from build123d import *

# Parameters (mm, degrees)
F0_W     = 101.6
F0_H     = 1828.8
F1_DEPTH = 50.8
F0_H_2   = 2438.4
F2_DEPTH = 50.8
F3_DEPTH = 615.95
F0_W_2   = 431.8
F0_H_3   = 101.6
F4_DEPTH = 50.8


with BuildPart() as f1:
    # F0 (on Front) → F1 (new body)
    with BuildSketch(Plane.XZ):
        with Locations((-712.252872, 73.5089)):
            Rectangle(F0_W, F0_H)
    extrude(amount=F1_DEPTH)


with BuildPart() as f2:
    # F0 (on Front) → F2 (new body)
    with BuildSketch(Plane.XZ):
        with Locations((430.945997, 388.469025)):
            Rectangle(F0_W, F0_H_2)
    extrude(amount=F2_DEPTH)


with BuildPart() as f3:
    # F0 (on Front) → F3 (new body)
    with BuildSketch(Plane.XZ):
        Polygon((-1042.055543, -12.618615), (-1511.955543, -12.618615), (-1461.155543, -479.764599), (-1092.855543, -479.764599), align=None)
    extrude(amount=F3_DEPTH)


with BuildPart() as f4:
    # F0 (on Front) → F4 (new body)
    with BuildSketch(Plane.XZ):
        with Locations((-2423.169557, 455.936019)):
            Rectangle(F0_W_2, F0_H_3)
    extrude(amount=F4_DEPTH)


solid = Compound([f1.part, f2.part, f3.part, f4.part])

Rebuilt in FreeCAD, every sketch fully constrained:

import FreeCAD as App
import Part
import Sketcher
Q = App.Units.Quantity

doc = App.newDocument("Part")
body = doc.addObject("PartDesign::Body", "Body")

sketch1 = body.newObject("Sketcher::SketchObject", "Sketch")
sketch1.AttachmentSupport = (doc.getObject("XZ_Plane"), [""])
sketch1.MapMode = "FlatFace"
sketch1.addGeometry(Part.LineSegment(App.Vector(-763.052872, 987.9089, 0), App.Vector(-763.052872, -840.8911, 0)), False)
sketch1.addGeometry(Part.LineSegment(App.Vector(-763.052872, -840.8911, 0), App.Vector(-661.452872, -840.8911, 0)), False)
sketch1.addGeometry(Part.LineSegment(App.Vector(-661.452872, -840.8911, 0), App.Vector(-661.452872, 987.9089, 0)), False)
sketch1.addGeometry(Part.LineSegment(App.Vector(-661.452872, 987.9089, 0), App.Vector(-763.052872, 987.9089, 0)), False)
sketch1.addConstraint(Sketcher.Constraint("Coincident", 0, 2, 1, 1))
sketch1.addConstraint(Sketcher.Constraint("Coincident", 1, 2, 2, 1))
sketch1.addConstraint(Sketcher.Constraint("Coincident", 2, 2, 3, 1))
sketch1.addConstraint(Sketcher.Constraint("Coincident", 3, 2, 0, 1))
sketch1.addConstraint(Sketcher.Constraint("Vertical", 0))
sketch1.addConstraint(Sketcher.Constraint("Horizontal", 1))
sketch1.addConstraint(Sketcher.Constraint("Vertical", 2))
sketch1.addConstraint(Sketcher.Constraint("Horizontal", 3))
sketch1.addConstraint(Sketcher.Constraint("DistanceX", 1, 1, 1, 2, Q("4 in")))
sketch1.addConstraint(Sketcher.Constraint("DistanceY", 0, 2, 0, 1, Q("72 in")))
sketch1.addConstraint(Sketcher.Constraint("DistanceY", 0, 2, -1, 1, 840.8911))
sketch1.addConstraint(Sketcher.Constraint("DistanceX", 0, 2, -1, 1, 763.052872))
pad1 = body.newObject("PartDesign::Pad", "Pad")
pad1.Profile = sketch1
pad1.Length = Q("2 in")
body2 = doc.addObject("PartDesign::Body", "Body001")

sketch2 = body2.newObject("Sketcher::SketchObject", "Sketch001")
sketch2.AttachmentSupport = (doc.getObject("XZ_Plane001"), [""])
sketch2.MapMode = "FlatFace"
sketch2.addGeometry(Part.LineSegment(App.Vector(380.145997, 1607.669025, 0), App.Vector(380.145997, -830.730975, 0)), False)
sketch2.addGeometry(Part.LineSegment(App.Vector(380.145997, -830.730975, 0), App.Vector(481.745997, -830.730975, 0)), False)
sketch2.addGeometry(Part.LineSegment(App.Vector(481.745997, -830.730975, 0), App.Vector(481.745997, 1607.669025, 0)), False)
sketch2.addGeometry(Part.LineSegment(App.Vector(481.745997, 1607.669025, 0), App.Vector(380.145997, 1607.669025, 0)), False)
sketch2.addConstraint(Sketcher.Constraint("Coincident", 0, 2, 1, 1))
sketch2.addConstraint(Sketcher.Constraint("Coincident", 1, 2, 2, 1))
sketch2.addConstraint(Sketcher.Constraint("Coincident", 2, 2, 3, 1))
sketch2.addConstraint(Sketcher.Constraint("Coincident", 3, 2, 0, 1))
sketch2.addConstraint(Sketcher.Constraint("Vertical", 0))
sketch2.addConstraint(Sketcher.Constraint("Horizontal", 1))
sketch2.addConstraint(Sketcher.Constraint("Vertical", 2))
sketch2.addConstraint(Sketcher.Constraint("Horizontal", 3))
sketch2.addConstraint(Sketcher.Constraint("DistanceX", 1, 1, 1, 2, Q("4 in")))
sketch2.addConstraint(Sketcher.Constraint("DistanceY", 0, 2, 0, 1, Q("96 in")))
sketch2.addConstraint(Sketcher.Constraint("DistanceX", -1, 1, 0, 2, 380.145997))
sketch2.addConstraint(Sketcher.Constraint("DistanceY", 0, 2, -1, 1, 830.730975))
pad2 = body2.newObject("PartDesign::Pad", "Pad001")
pad2.Profile = sketch2
pad2.Length = Q("2 in")
body3 = doc.addObject("PartDesign::Body", "Body002")

sketch3 = body3.newObject("Sketcher::SketchObject", "Sketch002")
sketch3.AttachmentSupport = (doc.getObject("XZ_Plane002"), [""])
sketch3.MapMode = "FlatFace"
sketch3.addGeometry(Part.LineSegment(App.Vector(-1042.055543, -12.618615, 0), App.Vector(-1511.955543, -12.618615, 0)), False)
sketch3.addGeometry(Part.LineSegment(App.Vector(-1511.955543, -12.618615, 0), App.Vector(-1461.155543, -479.764599, 0)), False)
sketch3.addGeometry(Part.LineSegment(App.Vector(-1461.155543, -479.764599, 0), App.Vector(-1092.855543, -479.764599, 0)), False)
sketch3.addGeometry(Part.LineSegment(App.Vector(-1092.855543, -479.764599, 0), App.Vector(-1042.055543, -12.618615, 0)), False)
sketch3.addConstraint(Sketcher.Constraint("Coincident", 0, 2, 1, 1))
sketch3.addConstraint(Sketcher.Constraint("Coincident", 1, 2, 2, 1))
sketch3.addConstraint(Sketcher.Constraint("Coincident", 2, 2, 3, 1))
sketch3.addConstraint(Sketcher.Constraint("Coincident", 3, 2, 0, 1))
sketch3.addConstraint(Sketcher.Constraint("Horizontal", 0))
sketch3.addConstraint(Sketcher.Constraint("Horizontal", 2))
sketch3.addConstraint(Sketcher.Constraint("Equal", 1, 3))
sketch3.addConstraint(Sketcher.Constraint("DistanceX", 0, 2, 0, 1, Q("18.5 in")))
sketch3.addConstraint(Sketcher.Constraint("DistanceX", 2, 1, 2, 2, Q("14.5 in")))
sketch3.addConstraint(Sketcher.Constraint("Distance", 1, Q("18.5 in")))
sketch3.addConstraint(Sketcher.Constraint("DistanceY", 1, 2, -1, 1, 479.764599))
sketch3.addConstraint(Sketcher.Constraint("DistanceX", 0, 2, -1, 1, 1511.955543))
pad3 = body3.newObject("PartDesign::Pad", "Pad002")
pad3.Profile = sketch3
pad3.Length = Q("24.25 in")
body4 = doc.addObject("PartDesign::Body", "Body003")

sketch4 = body4.newObject("Sketcher::SketchObject", "Sketch003")
sketch4.AttachmentSupport = (doc.getObject("XZ_Plane003"), [""])
sketch4.MapMode = "FlatFace"
sketch4.addGeometry(Part.LineSegment(App.Vector(-2639.069557, 506.736019, 0), App.Vector(-2639.069557, 405.136019, 0)), False)
sketch4.addGeometry(Part.LineSegment(App.Vector(-2639.069557, 405.136019, 0), App.Vector(-2207.269557, 405.136019, 0)), False)
sketch4.addGeometry(Part.LineSegment(App.Vector(-2207.269557, 405.136019, 0), App.Vector(-2207.269557, 506.736019, 0)), False)
sketch4.addGeometry(Part.LineSegment(App.Vector(-2207.269557, 506.736019, 0), App.Vector(-2639.069557, 506.736019, 0)), False)
sketch4.addConstraint(Sketcher.Constraint("Coincident", 0, 2, 1, 1))
sketch4.addConstraint(Sketcher.Constraint("Coincident", 1, 2, 2, 1))
sketch4.addConstraint(Sketcher.Constraint("Coincident", 2, 2, 3, 1))
sketch4.addConstraint(Sketcher.Constraint("Coincident", 3, 2, 0, 1))
sketch4.addConstraint(Sketcher.Constraint("Vertical", 0))
sketch4.addConstraint(Sketcher.Constraint("Horizontal", 1))
sketch4.addConstraint(Sketcher.Constraint("Vertical", 2))
sketch4.addConstraint(Sketcher.Constraint("Horizontal", 3))
sketch4.addConstraint(Sketcher.Constraint("DistanceX", 1, 1, 1, 2, Q("17 in")))
sketch4.addConstraint(Sketcher.Constraint("DistanceY", 0, 2, 0, 1, Q("4 in")))
sketch4.addConstraint(Sketcher.Constraint("DistanceY", -1, 1, 0, 2, 405.136019))
sketch4.addConstraint(Sketcher.Constraint("DistanceX", 0, 2, -1, 1, 2639.069557))
pad4 = body4.newObject("PartDesign::Pad", "Pad003")
pad4.Profile = sketch4
pad4.Length = Q("2 in")

doc.recompute()
